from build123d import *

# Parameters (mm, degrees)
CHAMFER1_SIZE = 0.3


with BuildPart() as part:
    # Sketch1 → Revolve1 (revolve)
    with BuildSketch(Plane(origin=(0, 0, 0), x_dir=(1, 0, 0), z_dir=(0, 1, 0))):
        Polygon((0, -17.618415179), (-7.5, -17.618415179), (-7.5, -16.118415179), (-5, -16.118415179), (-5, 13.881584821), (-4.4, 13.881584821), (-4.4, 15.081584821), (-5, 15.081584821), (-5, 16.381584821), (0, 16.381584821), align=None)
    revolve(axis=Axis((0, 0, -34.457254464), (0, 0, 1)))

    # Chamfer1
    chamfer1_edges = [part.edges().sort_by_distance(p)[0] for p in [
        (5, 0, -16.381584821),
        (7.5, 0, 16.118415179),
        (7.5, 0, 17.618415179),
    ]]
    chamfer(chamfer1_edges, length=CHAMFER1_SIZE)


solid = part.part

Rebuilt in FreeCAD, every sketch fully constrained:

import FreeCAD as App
import Part
import Sketcher

V = App.Vector


def edges_at(feature, points):
    """Names of the edges that pass closest to the given points."""
    edges = feature.Shape.Edges
    near = lambda p: min(range(len(edges)), key=lambda i: edges[i].distToShape(Part.Vertex(*p))[0])
    return sorted({f"Edge{near(p) + 1}" for p in points})

doc = App.newDocument("Part")
body = doc.addObject("PartDesign::Body", "Body")

sketch1 = body.newObject("Sketcher::SketchObject", "Sketch")
sketch1.AttachmentSupport = (doc.getObject("XZ_Plane"), [""])
sketch1.MapMode = "FlatFace"
sketch1.addGeometry(Part.LineSegment(V(-7.5, 17.6, 0), V(0, 17.6, 0)), False)
sketch1.addGeometry(Part.LineSegment(V(0, 17.6, 0), V(0, -16.4, 0)), False)
sketch1.addGeometry(Part.LineSegment(V(0, -16.4, 0), V(-5, -16.4, 0)), False)
sketch1.addGeometry(Part.LineSegment(V(-5, -16.4, 0), V(-5, -15.1, 0)), False)
sketch1.addGeometry(Part.LineSegment(V(-5, -15.1, 0), V(-4.4, -15.1, 0)), False)
sketch1.addGeometry(Part.LineSegment(V(-4.4, -15.1, 0), V(-4.4, -13.9, 0)), False)
sketch1.addGeometry(Part.LineSegment(V(-4.4, -13.9, 0), V(-5, -13.9, 0)), False)
sketch1.addGeometry(Part.LineSegment(V(-5, -13.9, 0), V(-5, 16.1, 0)), False)
sketch1.addGeometry(Part.LineSegment(V(-5, 16.1, 0), V(-7.5, 16.1, 0)), False)
sketch1.addGeometry(Part.LineSegment(V(-7.5, 16.1, 0), V(-7.5, 17.6, 0)), False)
sketch1.addConstraint(Sketcher.Constraint("Coincident", 0, 2, 1, 1))
sketch1.addConstraint(Sketcher.Constraint("Coincident", 1, 2, 2, 1))
sketch1.addConstraint(Sketcher.Constraint("Coincident", 2, 2, 3, 1))
sketch1.addConstraint(Sketcher.Constraint("Coincident", 3, 2, 4, 1))
sketch1.addConstraint(Sketcher.Constraint("Coincident", 4, 2, 5, 1))
sketch1.addConstraint(Sketcher.Constraint("Coincident", 5, 2, 6, 1))
sketch1.addConstraint(Sketcher.Constraint("Coincident", 6, 2, 7, 1))
sketch1.addConstraint(Sketcher.Constraint("Coincident", 7, 2, 8, 1))
sketch1.addConstraint(Sketcher.Constraint("Coincident", 8, 2, 9, 1))
sketch1.addConstraint(Sketcher.Constraint("Coincident", 9, 2, 0, 1))
sketch1.addConstraint(Sketcher.Constraint("Horizontal", 0))
sketch1.addConstraint(Sketcher.Constraint("Vertical", 1))
sketch1.addConstraint(Sketcher.Constraint("Horizontal", 2))
sketch1.addConstraint(Sketcher.Constraint("Vertical", 3))
sketch1.addConstraint(Sketcher.Constraint("Horizontal", 4))
sketch1.addConstraint(Sketcher.Constraint("Vertical", 5))
sketch1.addConstraint(Sketcher.Constraint("Horizontal", 6))
sketch1.addConstraint(Sketcher.Constraint("Vertical", 7))
sketch1.addConstraint(Sketcher.Constraint("Horizontal", 8))
sketch1.addConstraint(Sketcher.Constraint("Vertical", 9))
sketch1.addConstraint(Sketcher.Constraint("PointOnObject", 0, 2, -2))
sketch1.addConstraint(Sketcher.Constraint("Vertical", 3, 2, 6, 2))
sketch1.addConstraint(Sketcher.Constraint("DistanceX", 2, 2, 2, 1, 5.0))
sketch1.addConstraint(Sketcher.Constraint("DistanceY", 1, 2, 1, 1, 34.0))
sketch1.addConstraint(Sketcher.Constraint("DistanceY", 7, 1, 7, 2, 30.0))
sketch1.addConstraint(Sketcher.Constraint("DistanceX", 0, 1, 0, 2, 7.5))
sketch1.addConstraint(Sketcher.Constraint("DistanceX", 4, 1, 4, 2, 0.6))
sketch1.addConstraint(Sketcher.Constraint("DistanceY", 3, 1, 3, 2, 1.3))
sketch1.addConstraint(Sketcher.Constraint("DistanceY", 5, 1, 5, 2, 1.2))
sketch1.addConstraint(Sketcher.Constraint("DistanceY", -1, 1, 0, 2, 17.618415))
revolution = body.newObject("PartDesign::Revolution", "Revolution")
revolution.Profile = sketch1
revolution.ReferenceAxis = (sketch1, ["V_Axis"])
revolution.Angle = 360
doc.recompute()

chamfer = body.newObject("PartDesign::Chamfer", "Chamfer")
chamfer.Base = (revolution, edges_at(revolution, [(5, 0, -16.382), (7.5, 0, 16.118), (7.5, 0, 17.618)]))
chamfer.Size = 0.3

doc.recompute()
